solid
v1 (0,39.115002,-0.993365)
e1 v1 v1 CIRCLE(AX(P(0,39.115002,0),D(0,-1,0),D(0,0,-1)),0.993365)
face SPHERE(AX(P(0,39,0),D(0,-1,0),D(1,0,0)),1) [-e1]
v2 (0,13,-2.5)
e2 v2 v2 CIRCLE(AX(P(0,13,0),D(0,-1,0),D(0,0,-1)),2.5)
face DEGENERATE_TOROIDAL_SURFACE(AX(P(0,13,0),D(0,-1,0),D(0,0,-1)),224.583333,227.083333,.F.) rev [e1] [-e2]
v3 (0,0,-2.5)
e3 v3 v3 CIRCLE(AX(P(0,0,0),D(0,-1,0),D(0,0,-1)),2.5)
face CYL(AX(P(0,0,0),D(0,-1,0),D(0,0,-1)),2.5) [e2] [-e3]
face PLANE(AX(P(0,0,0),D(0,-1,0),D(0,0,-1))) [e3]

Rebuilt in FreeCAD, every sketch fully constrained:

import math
import FreeCAD as App
import Part
import Sketcher
Q = App.Units.Quantity

doc = App.newDocument("Part")
body = doc.addObject("PartDesign::Body", "Body")

# Sketch on XY plane
sketch1 = body.newObject("Sketcher::SketchObject", "Sketch")
sketch1.AttachmentSupport = (doc.getObject("XY_Plane"), [""])
sketch1.MapMode = "FlatFace"
sketch1.addGeometry([
    Part.LineSegment(App.Vector(0, 0, 0), App.Vector(2.5, 0, 0)),  # 0
    Part.LineSegment(App.Vector(2.5, 0, 0), App.Vector(2.5, 13, 0)),  # 1
    Part.ArcOfCircle(Part.Circle(App.Vector(-224.6, 13, 0), App.Vector(0, 0, 1), 227.1), math.radians(0), math.radians(6.6)),  # 2
    Part.ArcOfCircle(Part.Circle(App.Vector(0, 39, 0), App.Vector(0, 0, 1), 1), math.radians(7), math.radians(90)),  # 3
    Part.LineSegment(App.Vector(0, 40, 0), App.Vector(0, 0, 0)),  # 4
], False)
sketch1.addConstraint([
    Sketcher.Constraint("Coincident", 0, 2, 1, 1),
    Sketcher.Constraint("Tangent", 1, 2, 2, 1),
    Sketcher.Constraint("Tangent", 2, 2, 3, 1),
    Sketcher.Constraint("Coincident", 3, 2, 4, 1),
    Sketcher.Constraint("Coincident", 4, 2, 0, 1),
    Sketcher.Constraint("Horizontal", 0),
    Sketcher.Constraint("Vertical", 1),
    Sketcher.Constraint("Vertical", 4),
    Sketcher.Constraint("Coincident", 4, 2, -1, 1),
    Sketcher.Constraint("PointOnObject", 3, 3, -2),
    Sketcher.Constraint("Radius", 3, Q("1 mm")),
    Sketcher.Constraint("DistanceY", 1, 1, 1, 2, Q("13 mm")),
    Sketcher.Constraint("DistanceY", 4, 2, 4, 1, Q("40 mm")),
    Sketcher.Constraint("DistanceX", 0, 1, 0, 2, Q("2.5 mm")),
])
revolution = body.newObject("PartDesign::Revolution", "Revolution")
revolution.Profile = sketch1
revolution.ReferenceAxis = (sketch1, ["V_Axis"])
revolution.Angle = 360

doc.recompute()
